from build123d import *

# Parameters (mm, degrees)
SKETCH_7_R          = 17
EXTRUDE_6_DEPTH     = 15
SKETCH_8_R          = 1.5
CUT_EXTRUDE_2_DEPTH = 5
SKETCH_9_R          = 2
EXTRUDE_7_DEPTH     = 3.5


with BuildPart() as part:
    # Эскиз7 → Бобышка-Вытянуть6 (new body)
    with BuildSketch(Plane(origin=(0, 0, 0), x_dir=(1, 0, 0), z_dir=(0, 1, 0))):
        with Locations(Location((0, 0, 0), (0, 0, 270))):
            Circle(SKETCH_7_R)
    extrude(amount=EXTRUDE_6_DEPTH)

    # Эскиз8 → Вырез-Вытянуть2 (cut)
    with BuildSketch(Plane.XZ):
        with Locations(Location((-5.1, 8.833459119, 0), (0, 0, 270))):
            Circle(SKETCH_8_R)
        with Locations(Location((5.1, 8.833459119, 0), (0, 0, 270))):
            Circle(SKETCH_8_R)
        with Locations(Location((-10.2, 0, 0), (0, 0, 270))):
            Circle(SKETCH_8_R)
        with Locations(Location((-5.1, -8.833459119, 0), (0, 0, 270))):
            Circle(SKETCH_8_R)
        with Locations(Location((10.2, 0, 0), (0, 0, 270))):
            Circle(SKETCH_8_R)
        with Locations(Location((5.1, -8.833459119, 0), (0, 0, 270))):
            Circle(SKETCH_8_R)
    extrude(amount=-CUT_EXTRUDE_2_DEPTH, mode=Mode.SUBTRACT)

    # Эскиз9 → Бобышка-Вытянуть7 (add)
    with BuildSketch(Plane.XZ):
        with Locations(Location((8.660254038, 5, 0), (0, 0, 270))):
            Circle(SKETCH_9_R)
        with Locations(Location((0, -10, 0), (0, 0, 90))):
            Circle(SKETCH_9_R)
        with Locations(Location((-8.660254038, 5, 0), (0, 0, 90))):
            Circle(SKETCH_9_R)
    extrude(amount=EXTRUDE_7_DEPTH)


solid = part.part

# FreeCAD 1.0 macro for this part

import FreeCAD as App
import Part
import Sketcher
from FreeCAD import Vector
Q = App.Units.Quantity

doc = App.newDocument("Part")
body = doc.addObject("PartDesign::Body", "Body")

sketch1 = body.newObject("Sketcher::SketchObject", "Sketch")
sketch1.AttachmentSupport = (doc.getObject("XZ_Plane"), [""])
sketch1.MapMode = "FlatFace"
sketch1.addGeometry(Part.Circle(Vector(0, 0, 0), Vector(0, 0, 1), 17), False)
sketch1.addConstraint([
    Sketcher.Constraint("Coincident", 0, 3, -1, 1),
    Sketcher.Constraint("Diameter", 0, Q("34 mm")),
])
pad1 = body.newObject("PartDesign::Pad", "Pad")
pad1.Profile = sketch1
pad1.Length = 15
pad1.Reversed = True

sketch2 = body.newObject("Sketcher::SketchObject", "Sketch001")
sketch2.AttachmentSupport = (doc.getObject("XZ_Plane"), [""])
sketch2.MapMode = "FlatFace"
sketch2.addGeometry([
    Part.Circle(Vector(-5.1, 8.8, 0), Vector(0, 0, 1), 1.5),
    Part.Circle(Vector(5.1, 8.8, 0), Vector(0, 0, 1), 1.5),
    Part.Circle(Vector(-10.2, 0, 0), Vector(0, 0, 1), 1.5),
    Part.Circle(Vector(-5.1, -8.8, 0), Vector(0, 0, 1), 1.5),
    Part.Circle(Vector(10.2, 0, 0), Vector(0, 0, 1), 1.5),
    Part.Circle(Vector(5.1, -8.8, 0), Vector(0, 0, 1), 1.5),
], False)
sketch2.addConstraint([
    Sketcher.Constraint("Equal", 0, 1),
    Sketcher.Constraint("Equal", 1, 2),
    Sketcher.Constraint("Equal", 2, 3),
    Sketcher.Constraint("Equal", 3, 4),
    Sketcher.Constraint("Equal", 4, 5),
    Sketcher.Constraint("Symmetric", 1, 3, 3, 3, -1, 1),
    Sketcher.Constraint("Symmetric", 2, 3, 4, 3, -1, 1),
    Sketcher.Constraint("Symmetric", 0, 3, 5, 3, -1, 1),
    Sketcher.Constraint("Symmetric", 0, 3, 1, 3, -2),
    Sketcher.Constraint("PointOnObject", 2, 3, -1),
    Sketcher.Constraint("Diameter", 0, Q("3 mm")),
    Sketcher.Constraint("DistanceX", 0, 3, -1, 1, Q("5.1 mm")),
    Sketcher.Constraint("DistanceX", 2, 3, -1, 1, Q("10.2 mm")),
    Sketcher.Constraint("DistanceY", -1, 1, 0, 3, Q("8.833459 mm")),
])
pocket1 = body.newObject("PartDesign::Pocket", "Pocket")
pocket1.Profile = sketch2
pocket1.Length = 5

sketch3 = body.newObject("Sketcher::SketchObject", "Sketch002")
sketch3.AttachmentSupport = (doc.getObject("XZ_Plane"), [""])
sketch3.MapMode = "FlatFace"
sketch3.addGeometry([
    Part.Circle(Vector(8.7, 5, 0), Vector(0, 0, 1), 2),
    Part.Circle(Vector(0, -10, 0), Vector(0, 0, 1), 2),
    Part.Circle(Vector(-8.7, 5, 0), Vector(0, 0, 1), 2),
], False)
sketch3.addConstraint([
    Sketcher.Constraint("Equal", 0, 1),
    Sketcher.Constraint("Equal", 1, 2),
    Sketcher.Constraint("Symmetric", 0, 3, 2, 3, -2),
    Sketcher.Constraint("PointOnObject", 1, 3, -2),
    Sketcher.Constraint("Diameter", 0, Q("4 mm")),
    Sketcher.Constraint("DistanceY", -1, 1, 0, 3, Q("5 mm")),
    Sketcher.Constraint("DistanceY", 1, 3, -1, 1, Q("10 mm")),
    Sketcher.Constraint("DistanceX", 2, 3, 0, 3, Q("17.320508 mm")),
])
pad2 = body.newObject("PartDesign::Pad", "Pad001")
pad2.Profile = sketch3
pad2.Length = 3.5

doc.recompute()
